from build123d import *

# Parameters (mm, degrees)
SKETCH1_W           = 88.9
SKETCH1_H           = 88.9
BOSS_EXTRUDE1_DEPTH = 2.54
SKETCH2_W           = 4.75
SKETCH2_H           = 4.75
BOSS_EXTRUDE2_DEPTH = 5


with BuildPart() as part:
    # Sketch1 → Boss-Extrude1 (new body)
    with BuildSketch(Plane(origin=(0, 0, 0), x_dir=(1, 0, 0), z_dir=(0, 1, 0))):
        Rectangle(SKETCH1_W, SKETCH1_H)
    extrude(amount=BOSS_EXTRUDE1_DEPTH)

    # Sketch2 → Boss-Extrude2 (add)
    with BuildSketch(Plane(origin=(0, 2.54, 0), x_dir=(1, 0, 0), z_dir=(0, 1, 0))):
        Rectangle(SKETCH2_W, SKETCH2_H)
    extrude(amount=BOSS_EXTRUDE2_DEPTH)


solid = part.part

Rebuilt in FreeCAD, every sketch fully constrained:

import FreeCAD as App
import Part
import Sketcher
Q = App.Units.Quantity

doc = App.newDocument("Part")
params = doc.addObject("Spreadsheet::Sheet", "Params")
for row, (alias, value) in enumerate([
    ("sketch1_width", "3.5 in"),
    ("pad1_length", "0.1 in"),
    ("pad2_length", "5 mm"),
], start=1):
    params.set(f"A{row}", alias)
    params.set(f"B{row}", "=" + value)
    params.setAlias(f"B{row}", alias)

body = doc.addObject("PartDesign::Body", "Body")

# Sketch on XZ plane
sketch1 = doc.addObject("Sketcher::SketchObject", "Sketch")
body.addObject(sketch1)
sketch1.AttachmentSupport = (doc.XZ_Plane, [""])
sketch1.MapMode = "FlatFace"
sketch1.addGeometry([
    Part.LineSegment(App.Vector(-44, -44, 0), App.Vector(-44, 44, 0)),
    Part.LineSegment(App.Vector(-44, 44, 0), App.Vector(44, 44, 0)),
    Part.LineSegment(App.Vector(44, 44, 0), App.Vector(44, -44, 0)),
    Part.LineSegment(App.Vector(44, -44, 0), App.Vector(-44, -44, 0)),
], False)
sketch1.addConstraint([
    Sketcher.Constraint("Coincident", 0, 2, 1, 1),
    Sketcher.Constraint("Coincident", 1, 2, 2, 1),
    Sketcher.Constraint("Coincident", 2, 2, 3, 1),
    Sketcher.Constraint("Coincident", 3, 2, 0, 1),
    Sketcher.Constraint("Vertical", 0),
    Sketcher.Constraint("Horizontal", 1),
    Sketcher.Constraint("Vertical", 2),
    Sketcher.Constraint("Horizontal", 3),
    Sketcher.Constraint("Symmetric", 0, 2, 2, 2, -1, 1),
    Sketcher.Constraint("Equal", 3, 0),
    Sketcher.Constraint("DistanceX", 1, 1, 1, 2, Q("3.5 in")),
])
sketch1.setExpression("Constraints[10]", "Params.sketch1_width")
pad1 = doc.addObject("PartDesign::Pad", "Pad")
body.addObject(pad1)
pad1.Profile = sketch1
pad1.setExpression("Length", "Params.pad1_length")
pad1.Reversed = True

# Sketch on XZ plane
sketch2 = doc.addObject("Sketcher::SketchObject", "Sketch001")
body.addObject(sketch2)
sketch2.AttachmentSupport = (doc.XZ_Plane, [""])
sketch2.MapMode = "FlatFace"
sketch2.AttachmentOffset = App.Placement(App.Vector(0, 0, -0.1 * 25.4), App.Rotation())
sketch2.addGeometry([
    Part.LineSegment(App.Vector(-2.4, -2.4, 0), App.Vector(-2.4, 2.4, 0)),
    Part.LineSegment(App.Vector(-2.4, 2.4, 0), App.Vector(2.4, 2.4, 0)),
    Part.LineSegment(App.Vector(2.4, 2.4, 0), App.Vector(2.4, -2.4, 0)),
    Part.LineSegment(App.Vector(2.4, -2.4, 0), App.Vector(-2.4, -2.4, 0)),
], False)
sketch2.addConstraint([
    Sketcher.Constraint("Coincident", 0, 2, 1, 1),
    Sketcher.Constraint("Coincident", 1, 2, 2, 1),
    Sketcher.Constraint("Coincident", 2, 2, 3, 1),
    Sketcher.Constraint("Coincident", 3, 2, 0, 1),
    Sketcher.Constraint("Vertical", 0),
    Sketcher.Constraint("Horizontal", 1),
    Sketcher.Constraint("Vertical", 2),
    Sketcher.Constraint("Horizontal", 3),
    Sketcher.Constraint("Symmetric", 0, 2, 2, 2, -1, 1),
    Sketcher.Constraint("Equal", 3, 0),
    Sketcher.Constraint("DistanceX", 1, 1, 1, 2, Q("4.75 mm")),
])
pad2 = doc.addObject("PartDesign::Pad", "Pad001")
body.addObject(pad2)
pad2.Profile = sketch2
pad2.setExpression("Length", "Params.pad2_length")
pad2.Reversed = True

doc.recompute()
